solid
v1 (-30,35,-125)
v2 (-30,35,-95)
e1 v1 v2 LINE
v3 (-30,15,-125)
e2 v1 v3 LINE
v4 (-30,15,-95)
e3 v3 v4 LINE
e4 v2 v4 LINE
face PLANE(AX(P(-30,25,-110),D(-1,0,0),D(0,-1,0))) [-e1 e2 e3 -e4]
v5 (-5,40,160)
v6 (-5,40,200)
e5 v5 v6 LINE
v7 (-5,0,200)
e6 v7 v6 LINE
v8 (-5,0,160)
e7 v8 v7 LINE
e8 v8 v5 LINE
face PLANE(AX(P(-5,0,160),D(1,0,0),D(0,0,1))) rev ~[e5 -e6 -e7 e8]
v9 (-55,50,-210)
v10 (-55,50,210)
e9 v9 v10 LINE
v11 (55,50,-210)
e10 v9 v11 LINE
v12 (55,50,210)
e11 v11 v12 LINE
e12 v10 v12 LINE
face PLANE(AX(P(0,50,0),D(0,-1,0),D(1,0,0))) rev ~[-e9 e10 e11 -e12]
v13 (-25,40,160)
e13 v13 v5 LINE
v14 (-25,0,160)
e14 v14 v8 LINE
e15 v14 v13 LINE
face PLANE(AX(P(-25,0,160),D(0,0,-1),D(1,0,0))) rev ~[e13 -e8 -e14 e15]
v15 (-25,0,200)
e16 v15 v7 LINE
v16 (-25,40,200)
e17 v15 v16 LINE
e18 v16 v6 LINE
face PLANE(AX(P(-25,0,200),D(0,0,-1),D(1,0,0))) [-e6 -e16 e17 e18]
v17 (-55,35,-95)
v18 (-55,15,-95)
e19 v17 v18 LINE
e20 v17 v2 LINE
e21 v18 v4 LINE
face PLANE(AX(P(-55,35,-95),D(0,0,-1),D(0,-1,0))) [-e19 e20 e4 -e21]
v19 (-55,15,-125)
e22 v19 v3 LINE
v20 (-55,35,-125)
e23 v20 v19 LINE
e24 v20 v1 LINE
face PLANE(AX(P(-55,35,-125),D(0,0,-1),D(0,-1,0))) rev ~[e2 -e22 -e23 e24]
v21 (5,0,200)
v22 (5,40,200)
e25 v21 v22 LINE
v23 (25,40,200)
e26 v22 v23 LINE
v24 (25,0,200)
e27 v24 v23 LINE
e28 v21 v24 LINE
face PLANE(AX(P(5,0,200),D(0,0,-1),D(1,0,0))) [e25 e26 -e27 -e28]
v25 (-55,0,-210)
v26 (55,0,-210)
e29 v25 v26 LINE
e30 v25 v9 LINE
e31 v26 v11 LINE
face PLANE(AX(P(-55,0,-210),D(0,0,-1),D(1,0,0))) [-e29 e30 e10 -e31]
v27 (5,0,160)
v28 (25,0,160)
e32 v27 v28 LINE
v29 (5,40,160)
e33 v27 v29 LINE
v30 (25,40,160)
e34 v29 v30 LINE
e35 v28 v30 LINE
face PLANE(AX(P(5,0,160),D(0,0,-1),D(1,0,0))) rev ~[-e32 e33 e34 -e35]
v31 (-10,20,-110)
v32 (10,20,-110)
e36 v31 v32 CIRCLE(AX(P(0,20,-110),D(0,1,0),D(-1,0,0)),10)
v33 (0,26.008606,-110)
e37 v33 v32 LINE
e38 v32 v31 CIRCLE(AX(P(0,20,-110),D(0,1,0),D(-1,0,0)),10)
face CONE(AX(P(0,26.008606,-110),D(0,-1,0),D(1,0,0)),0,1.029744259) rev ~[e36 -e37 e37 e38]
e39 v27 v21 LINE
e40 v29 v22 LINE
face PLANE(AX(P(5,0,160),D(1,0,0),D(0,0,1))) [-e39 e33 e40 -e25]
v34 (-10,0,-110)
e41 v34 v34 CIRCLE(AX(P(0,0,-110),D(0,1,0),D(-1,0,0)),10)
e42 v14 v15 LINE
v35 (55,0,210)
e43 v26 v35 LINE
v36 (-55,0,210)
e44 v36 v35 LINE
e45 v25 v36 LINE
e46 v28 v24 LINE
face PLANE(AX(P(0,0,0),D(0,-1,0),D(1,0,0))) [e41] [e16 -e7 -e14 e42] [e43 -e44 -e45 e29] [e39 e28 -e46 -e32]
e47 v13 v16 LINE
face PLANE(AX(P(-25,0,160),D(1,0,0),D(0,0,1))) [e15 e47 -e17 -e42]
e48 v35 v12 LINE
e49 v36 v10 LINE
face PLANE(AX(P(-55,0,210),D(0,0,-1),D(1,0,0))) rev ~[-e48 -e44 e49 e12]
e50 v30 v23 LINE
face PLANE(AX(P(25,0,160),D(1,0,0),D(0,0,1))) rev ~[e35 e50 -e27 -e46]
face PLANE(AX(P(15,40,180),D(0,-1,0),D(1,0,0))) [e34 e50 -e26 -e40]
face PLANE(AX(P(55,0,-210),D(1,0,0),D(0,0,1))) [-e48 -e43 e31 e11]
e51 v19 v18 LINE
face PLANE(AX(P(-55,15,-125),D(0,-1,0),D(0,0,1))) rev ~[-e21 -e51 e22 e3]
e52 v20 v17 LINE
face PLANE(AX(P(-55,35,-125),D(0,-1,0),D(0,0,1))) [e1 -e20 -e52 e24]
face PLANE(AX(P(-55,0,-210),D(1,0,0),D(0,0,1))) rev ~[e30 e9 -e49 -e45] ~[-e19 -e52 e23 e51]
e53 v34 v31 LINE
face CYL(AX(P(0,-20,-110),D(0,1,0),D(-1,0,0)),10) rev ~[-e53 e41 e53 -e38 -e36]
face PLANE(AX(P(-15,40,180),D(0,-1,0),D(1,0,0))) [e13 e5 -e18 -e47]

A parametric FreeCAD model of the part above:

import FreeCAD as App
import Part
import Sketcher
from FreeCAD import Vector
Q = App.Units.Quantity

doc = App.newDocument("Part")
body = doc.addObject("PartDesign::Body", "Body")

# Sketch on XZ plane
sketch1 = doc.addObject("Sketcher::SketchObject", "Sketch")
body.addObject(sketch1)
sketch1.AttachmentSupport = (doc.XZ_Plane, [""])
sketch1.MapMode = "FlatFace"
sketch1.addGeometry([
    Part.LineSegment(Vector(-55, 210, 0), Vector(-55, -210, 0)),
    Part.LineSegment(Vector(-55, -210, 0), Vector(55, -210, 0)),
    Part.LineSegment(Vector(55, -210, 0), Vector(55, 210, 0)),
    Part.LineSegment(Vector(55, 210, 0), Vector(-55, 210, 0)),
], False)
sketch1.addConstraint([
    Sketcher.Constraint("Coincident", 0, 2, 1, 1),
    Sketcher.Constraint("Coincident", 1, 2, 2, 1),
    Sketcher.Constraint("Coincident", 2, 2, 3, 1),
    Sketcher.Constraint("Coincident", 3, 2, 0, 1),
    Sketcher.Constraint("Vertical", 0),
    Sketcher.Constraint("Horizontal", 1),
    Sketcher.Constraint("Vertical", 2),
    Sketcher.Constraint("Horizontal", 3),
    Sketcher.Constraint("Symmetric", 0, 2, 2, 2, -1, 1),
    Sketcher.Constraint("DistanceX", 1, 1, 1, 2, Q("110 mm")),
    Sketcher.Constraint("DistanceY", 0, 2, 0, 1, Q("420 mm")),
])
pad1 = doc.addObject("PartDesign::Pad", "Pad")
body.addObject(pad1)
pad1.Profile = sketch1
pad1.Length = 50
pad1.Reversed = True

# Sketch on XZ plane
sketch2 = doc.addObject("Sketcher::SketchObject", "Sketch001")
body.addObject(sketch2)
sketch2.AttachmentSupport = (doc.XZ_Plane, [""])
sketch2.MapMode = "FlatFace"
sketch2.addGeometry(Part.Circle(Vector(0, -110, 0), Vector(0, 0, 1), 10), False)
sketch2.addConstraint([
    Sketcher.Constraint("PointOnObject", 0, 3, -2),
    Sketcher.Constraint("Diameter", 0, Q("20 mm")),
    Sketcher.Constraint("DistanceY", 0, 3, -1, 1, Q("110 mm")),
])
doc.recompute()
hole = doc.addObject("PartDesign::Hole", "Hole")
body.addObject(hole)
hole.Profile = sketch2
hole.ThreadType = "None"
hole.Diameter = 20
hole.DepthType = "Dimension"
hole.Depth = 20
hole.DrillPoint = "Angled"
hole.DrillPointAngle = 118

# Sketch on XZ plane
sketch3 = doc.addObject("Sketcher::SketchObject", "Sketch002")
body.addObject(sketch3)
sketch3.AttachmentSupport = (doc.XZ_Plane, [""])
sketch3.MapMode = "FlatFace"
sketch3.addGeometry([
    Part.LineSegment(Vector(-25, 200, 0), Vector(-25, 160, 0)),  # 0
    Part.LineSegment(Vector(-25, 160, 0), Vector(-5, 160, 0)),  # 1
    Part.LineSegment(Vector(-5, 160, 0), Vector(-5, 200, 0)),  # 2
    Part.LineSegment(Vector(-5, 200, 0), Vector(-25, 200, 0)),  # 3
    Part.LineSegment(Vector(5, 200, 0), Vector(5, 160, 0)),  # 4
    Part.LineSegment(Vector(5, 160, 0), Vector(25, 160, 0)),  # 5
    Part.LineSegment(Vector(25, 160, 0), Vector(25, 200, 0)),  # 6
    Part.LineSegment(Vector(25, 200, 0), Vector(5, 200, 0)),  # 7
], False)
sketch3.addConstraint([
    Sketcher.Constraint("Coincident", 0, 2, 1, 1),
    Sketcher.Constraint("Coincident", 1, 2, 2, 1),
    Sketcher.Constraint("Coincident", 2, 2, 3, 1),
    Sketcher.Constraint("Coincident", 3, 2, 0, 1),
    Sketcher.Constraint("Coincident", 4, 2, 5, 1),
    Sketcher.Constraint("Coincident", 5, 2, 6, 1),
    Sketcher.Constraint("Coincident", 6, 2, 7, 1),
    Sketcher.Constraint("Coincident", 7, 2, 4, 1),
    Sketcher.Constraint("Vertical", 0),
    Sketcher.Constraint("Horizontal", 1),
    Sketcher.Constraint("Vertical", 2),
    Sketcher.Constraint("Horizontal", 3),
    Sketcher.Constraint("Vertical", 4),
    Sketcher.Constraint("Horizontal", 5),
    Sketcher.Constraint("Vertical", 6),
    Sketcher.Constraint("Horizontal", 7),
    Sketcher.Constraint("Symmetric", 1, 2, 4, 2, -2),
    Sketcher.Constraint("Symmetric", 3, 2, 6, 2, -2),
    Sketcher.Constraint("DistanceX", 1, 1, 1, 2, Q("20 mm")),
    Sketcher.Constraint("DistanceY", 0, 2, 0, 1, Q("40 mm")),
    Sketcher.Constraint("DistanceX", 0, 2, -1, 1, Q("25 mm")),
    Sketcher.Constraint("DistanceY", -1, 1, 0, 2, Q("160 mm")),
])
pocket1 = doc.addObject("PartDesign::Pocket", "Pocket")
body.addObject(pocket1)
pocket1.Profile = sketch3
pocket1.Length = 40

# Sketch on YZ plane
sketch4 = doc.addObject("Sketcher::SketchObject", "Sketch003")
body.addObject(sketch4)
sketch4.AttachmentSupport = (doc.YZ_Plane, [""])
sketch4.MapMode = "FlatFace"
sketch4.AttachmentOffset = App.Placement(Vector(0, 0, -55), App.Rotation())
sketch4.addGeometry([
    Part.LineSegment(Vector(35, -95, 0), Vector(35, -125, 0)),
    Part.LineSegment(Vector(35, -125, 0), Vector(15, -125, 0)),
    Part.LineSegment(Vector(15, -125, 0), Vector(15, -95, 0)),
    Part.LineSegment(Vector(15, -95, 0), Vector(35, -95, 0)),
], False)
sketch4.addConstraint([
    Sketcher.Constraint("Coincident", 0, 2, 1, 1),
    Sketcher.Constraint("Coincident", 1, 2, 2, 1),
    Sketcher.Constraint("Coincident", 2, 2, 3, 1),
    Sketcher.Constraint("Coincident", 3, 2, 0, 1),
    Sketcher.Constraint("Vertical", 0),
    Sketcher.Constraint("Horizontal", 1),
    Sketcher.Constraint("Vertical", 2),
    Sketcher.Constraint("Horizontal", 3),
    Sketcher.Constraint("DistanceX", 1, 2, 1, 1, Q("20 mm")),
    Sketcher.Constraint("DistanceY", 0, 2, 0, 1, Q("30 mm")),
    Sketcher.Constraint("DistanceX", -1, 1, 0, 2, Q("35 mm")),
    Sketcher.Constraint("DistanceY", 0, 2, -1, 1, Q("125 mm")),
])
pocket2 = doc.addObject("PartDesign::Pocket", "Pocket001")
body.addObject(pocket2)
pocket2.Profile = sketch4
pocket2.Length = 25
pocket2.Reversed = True

doc.recompute()
